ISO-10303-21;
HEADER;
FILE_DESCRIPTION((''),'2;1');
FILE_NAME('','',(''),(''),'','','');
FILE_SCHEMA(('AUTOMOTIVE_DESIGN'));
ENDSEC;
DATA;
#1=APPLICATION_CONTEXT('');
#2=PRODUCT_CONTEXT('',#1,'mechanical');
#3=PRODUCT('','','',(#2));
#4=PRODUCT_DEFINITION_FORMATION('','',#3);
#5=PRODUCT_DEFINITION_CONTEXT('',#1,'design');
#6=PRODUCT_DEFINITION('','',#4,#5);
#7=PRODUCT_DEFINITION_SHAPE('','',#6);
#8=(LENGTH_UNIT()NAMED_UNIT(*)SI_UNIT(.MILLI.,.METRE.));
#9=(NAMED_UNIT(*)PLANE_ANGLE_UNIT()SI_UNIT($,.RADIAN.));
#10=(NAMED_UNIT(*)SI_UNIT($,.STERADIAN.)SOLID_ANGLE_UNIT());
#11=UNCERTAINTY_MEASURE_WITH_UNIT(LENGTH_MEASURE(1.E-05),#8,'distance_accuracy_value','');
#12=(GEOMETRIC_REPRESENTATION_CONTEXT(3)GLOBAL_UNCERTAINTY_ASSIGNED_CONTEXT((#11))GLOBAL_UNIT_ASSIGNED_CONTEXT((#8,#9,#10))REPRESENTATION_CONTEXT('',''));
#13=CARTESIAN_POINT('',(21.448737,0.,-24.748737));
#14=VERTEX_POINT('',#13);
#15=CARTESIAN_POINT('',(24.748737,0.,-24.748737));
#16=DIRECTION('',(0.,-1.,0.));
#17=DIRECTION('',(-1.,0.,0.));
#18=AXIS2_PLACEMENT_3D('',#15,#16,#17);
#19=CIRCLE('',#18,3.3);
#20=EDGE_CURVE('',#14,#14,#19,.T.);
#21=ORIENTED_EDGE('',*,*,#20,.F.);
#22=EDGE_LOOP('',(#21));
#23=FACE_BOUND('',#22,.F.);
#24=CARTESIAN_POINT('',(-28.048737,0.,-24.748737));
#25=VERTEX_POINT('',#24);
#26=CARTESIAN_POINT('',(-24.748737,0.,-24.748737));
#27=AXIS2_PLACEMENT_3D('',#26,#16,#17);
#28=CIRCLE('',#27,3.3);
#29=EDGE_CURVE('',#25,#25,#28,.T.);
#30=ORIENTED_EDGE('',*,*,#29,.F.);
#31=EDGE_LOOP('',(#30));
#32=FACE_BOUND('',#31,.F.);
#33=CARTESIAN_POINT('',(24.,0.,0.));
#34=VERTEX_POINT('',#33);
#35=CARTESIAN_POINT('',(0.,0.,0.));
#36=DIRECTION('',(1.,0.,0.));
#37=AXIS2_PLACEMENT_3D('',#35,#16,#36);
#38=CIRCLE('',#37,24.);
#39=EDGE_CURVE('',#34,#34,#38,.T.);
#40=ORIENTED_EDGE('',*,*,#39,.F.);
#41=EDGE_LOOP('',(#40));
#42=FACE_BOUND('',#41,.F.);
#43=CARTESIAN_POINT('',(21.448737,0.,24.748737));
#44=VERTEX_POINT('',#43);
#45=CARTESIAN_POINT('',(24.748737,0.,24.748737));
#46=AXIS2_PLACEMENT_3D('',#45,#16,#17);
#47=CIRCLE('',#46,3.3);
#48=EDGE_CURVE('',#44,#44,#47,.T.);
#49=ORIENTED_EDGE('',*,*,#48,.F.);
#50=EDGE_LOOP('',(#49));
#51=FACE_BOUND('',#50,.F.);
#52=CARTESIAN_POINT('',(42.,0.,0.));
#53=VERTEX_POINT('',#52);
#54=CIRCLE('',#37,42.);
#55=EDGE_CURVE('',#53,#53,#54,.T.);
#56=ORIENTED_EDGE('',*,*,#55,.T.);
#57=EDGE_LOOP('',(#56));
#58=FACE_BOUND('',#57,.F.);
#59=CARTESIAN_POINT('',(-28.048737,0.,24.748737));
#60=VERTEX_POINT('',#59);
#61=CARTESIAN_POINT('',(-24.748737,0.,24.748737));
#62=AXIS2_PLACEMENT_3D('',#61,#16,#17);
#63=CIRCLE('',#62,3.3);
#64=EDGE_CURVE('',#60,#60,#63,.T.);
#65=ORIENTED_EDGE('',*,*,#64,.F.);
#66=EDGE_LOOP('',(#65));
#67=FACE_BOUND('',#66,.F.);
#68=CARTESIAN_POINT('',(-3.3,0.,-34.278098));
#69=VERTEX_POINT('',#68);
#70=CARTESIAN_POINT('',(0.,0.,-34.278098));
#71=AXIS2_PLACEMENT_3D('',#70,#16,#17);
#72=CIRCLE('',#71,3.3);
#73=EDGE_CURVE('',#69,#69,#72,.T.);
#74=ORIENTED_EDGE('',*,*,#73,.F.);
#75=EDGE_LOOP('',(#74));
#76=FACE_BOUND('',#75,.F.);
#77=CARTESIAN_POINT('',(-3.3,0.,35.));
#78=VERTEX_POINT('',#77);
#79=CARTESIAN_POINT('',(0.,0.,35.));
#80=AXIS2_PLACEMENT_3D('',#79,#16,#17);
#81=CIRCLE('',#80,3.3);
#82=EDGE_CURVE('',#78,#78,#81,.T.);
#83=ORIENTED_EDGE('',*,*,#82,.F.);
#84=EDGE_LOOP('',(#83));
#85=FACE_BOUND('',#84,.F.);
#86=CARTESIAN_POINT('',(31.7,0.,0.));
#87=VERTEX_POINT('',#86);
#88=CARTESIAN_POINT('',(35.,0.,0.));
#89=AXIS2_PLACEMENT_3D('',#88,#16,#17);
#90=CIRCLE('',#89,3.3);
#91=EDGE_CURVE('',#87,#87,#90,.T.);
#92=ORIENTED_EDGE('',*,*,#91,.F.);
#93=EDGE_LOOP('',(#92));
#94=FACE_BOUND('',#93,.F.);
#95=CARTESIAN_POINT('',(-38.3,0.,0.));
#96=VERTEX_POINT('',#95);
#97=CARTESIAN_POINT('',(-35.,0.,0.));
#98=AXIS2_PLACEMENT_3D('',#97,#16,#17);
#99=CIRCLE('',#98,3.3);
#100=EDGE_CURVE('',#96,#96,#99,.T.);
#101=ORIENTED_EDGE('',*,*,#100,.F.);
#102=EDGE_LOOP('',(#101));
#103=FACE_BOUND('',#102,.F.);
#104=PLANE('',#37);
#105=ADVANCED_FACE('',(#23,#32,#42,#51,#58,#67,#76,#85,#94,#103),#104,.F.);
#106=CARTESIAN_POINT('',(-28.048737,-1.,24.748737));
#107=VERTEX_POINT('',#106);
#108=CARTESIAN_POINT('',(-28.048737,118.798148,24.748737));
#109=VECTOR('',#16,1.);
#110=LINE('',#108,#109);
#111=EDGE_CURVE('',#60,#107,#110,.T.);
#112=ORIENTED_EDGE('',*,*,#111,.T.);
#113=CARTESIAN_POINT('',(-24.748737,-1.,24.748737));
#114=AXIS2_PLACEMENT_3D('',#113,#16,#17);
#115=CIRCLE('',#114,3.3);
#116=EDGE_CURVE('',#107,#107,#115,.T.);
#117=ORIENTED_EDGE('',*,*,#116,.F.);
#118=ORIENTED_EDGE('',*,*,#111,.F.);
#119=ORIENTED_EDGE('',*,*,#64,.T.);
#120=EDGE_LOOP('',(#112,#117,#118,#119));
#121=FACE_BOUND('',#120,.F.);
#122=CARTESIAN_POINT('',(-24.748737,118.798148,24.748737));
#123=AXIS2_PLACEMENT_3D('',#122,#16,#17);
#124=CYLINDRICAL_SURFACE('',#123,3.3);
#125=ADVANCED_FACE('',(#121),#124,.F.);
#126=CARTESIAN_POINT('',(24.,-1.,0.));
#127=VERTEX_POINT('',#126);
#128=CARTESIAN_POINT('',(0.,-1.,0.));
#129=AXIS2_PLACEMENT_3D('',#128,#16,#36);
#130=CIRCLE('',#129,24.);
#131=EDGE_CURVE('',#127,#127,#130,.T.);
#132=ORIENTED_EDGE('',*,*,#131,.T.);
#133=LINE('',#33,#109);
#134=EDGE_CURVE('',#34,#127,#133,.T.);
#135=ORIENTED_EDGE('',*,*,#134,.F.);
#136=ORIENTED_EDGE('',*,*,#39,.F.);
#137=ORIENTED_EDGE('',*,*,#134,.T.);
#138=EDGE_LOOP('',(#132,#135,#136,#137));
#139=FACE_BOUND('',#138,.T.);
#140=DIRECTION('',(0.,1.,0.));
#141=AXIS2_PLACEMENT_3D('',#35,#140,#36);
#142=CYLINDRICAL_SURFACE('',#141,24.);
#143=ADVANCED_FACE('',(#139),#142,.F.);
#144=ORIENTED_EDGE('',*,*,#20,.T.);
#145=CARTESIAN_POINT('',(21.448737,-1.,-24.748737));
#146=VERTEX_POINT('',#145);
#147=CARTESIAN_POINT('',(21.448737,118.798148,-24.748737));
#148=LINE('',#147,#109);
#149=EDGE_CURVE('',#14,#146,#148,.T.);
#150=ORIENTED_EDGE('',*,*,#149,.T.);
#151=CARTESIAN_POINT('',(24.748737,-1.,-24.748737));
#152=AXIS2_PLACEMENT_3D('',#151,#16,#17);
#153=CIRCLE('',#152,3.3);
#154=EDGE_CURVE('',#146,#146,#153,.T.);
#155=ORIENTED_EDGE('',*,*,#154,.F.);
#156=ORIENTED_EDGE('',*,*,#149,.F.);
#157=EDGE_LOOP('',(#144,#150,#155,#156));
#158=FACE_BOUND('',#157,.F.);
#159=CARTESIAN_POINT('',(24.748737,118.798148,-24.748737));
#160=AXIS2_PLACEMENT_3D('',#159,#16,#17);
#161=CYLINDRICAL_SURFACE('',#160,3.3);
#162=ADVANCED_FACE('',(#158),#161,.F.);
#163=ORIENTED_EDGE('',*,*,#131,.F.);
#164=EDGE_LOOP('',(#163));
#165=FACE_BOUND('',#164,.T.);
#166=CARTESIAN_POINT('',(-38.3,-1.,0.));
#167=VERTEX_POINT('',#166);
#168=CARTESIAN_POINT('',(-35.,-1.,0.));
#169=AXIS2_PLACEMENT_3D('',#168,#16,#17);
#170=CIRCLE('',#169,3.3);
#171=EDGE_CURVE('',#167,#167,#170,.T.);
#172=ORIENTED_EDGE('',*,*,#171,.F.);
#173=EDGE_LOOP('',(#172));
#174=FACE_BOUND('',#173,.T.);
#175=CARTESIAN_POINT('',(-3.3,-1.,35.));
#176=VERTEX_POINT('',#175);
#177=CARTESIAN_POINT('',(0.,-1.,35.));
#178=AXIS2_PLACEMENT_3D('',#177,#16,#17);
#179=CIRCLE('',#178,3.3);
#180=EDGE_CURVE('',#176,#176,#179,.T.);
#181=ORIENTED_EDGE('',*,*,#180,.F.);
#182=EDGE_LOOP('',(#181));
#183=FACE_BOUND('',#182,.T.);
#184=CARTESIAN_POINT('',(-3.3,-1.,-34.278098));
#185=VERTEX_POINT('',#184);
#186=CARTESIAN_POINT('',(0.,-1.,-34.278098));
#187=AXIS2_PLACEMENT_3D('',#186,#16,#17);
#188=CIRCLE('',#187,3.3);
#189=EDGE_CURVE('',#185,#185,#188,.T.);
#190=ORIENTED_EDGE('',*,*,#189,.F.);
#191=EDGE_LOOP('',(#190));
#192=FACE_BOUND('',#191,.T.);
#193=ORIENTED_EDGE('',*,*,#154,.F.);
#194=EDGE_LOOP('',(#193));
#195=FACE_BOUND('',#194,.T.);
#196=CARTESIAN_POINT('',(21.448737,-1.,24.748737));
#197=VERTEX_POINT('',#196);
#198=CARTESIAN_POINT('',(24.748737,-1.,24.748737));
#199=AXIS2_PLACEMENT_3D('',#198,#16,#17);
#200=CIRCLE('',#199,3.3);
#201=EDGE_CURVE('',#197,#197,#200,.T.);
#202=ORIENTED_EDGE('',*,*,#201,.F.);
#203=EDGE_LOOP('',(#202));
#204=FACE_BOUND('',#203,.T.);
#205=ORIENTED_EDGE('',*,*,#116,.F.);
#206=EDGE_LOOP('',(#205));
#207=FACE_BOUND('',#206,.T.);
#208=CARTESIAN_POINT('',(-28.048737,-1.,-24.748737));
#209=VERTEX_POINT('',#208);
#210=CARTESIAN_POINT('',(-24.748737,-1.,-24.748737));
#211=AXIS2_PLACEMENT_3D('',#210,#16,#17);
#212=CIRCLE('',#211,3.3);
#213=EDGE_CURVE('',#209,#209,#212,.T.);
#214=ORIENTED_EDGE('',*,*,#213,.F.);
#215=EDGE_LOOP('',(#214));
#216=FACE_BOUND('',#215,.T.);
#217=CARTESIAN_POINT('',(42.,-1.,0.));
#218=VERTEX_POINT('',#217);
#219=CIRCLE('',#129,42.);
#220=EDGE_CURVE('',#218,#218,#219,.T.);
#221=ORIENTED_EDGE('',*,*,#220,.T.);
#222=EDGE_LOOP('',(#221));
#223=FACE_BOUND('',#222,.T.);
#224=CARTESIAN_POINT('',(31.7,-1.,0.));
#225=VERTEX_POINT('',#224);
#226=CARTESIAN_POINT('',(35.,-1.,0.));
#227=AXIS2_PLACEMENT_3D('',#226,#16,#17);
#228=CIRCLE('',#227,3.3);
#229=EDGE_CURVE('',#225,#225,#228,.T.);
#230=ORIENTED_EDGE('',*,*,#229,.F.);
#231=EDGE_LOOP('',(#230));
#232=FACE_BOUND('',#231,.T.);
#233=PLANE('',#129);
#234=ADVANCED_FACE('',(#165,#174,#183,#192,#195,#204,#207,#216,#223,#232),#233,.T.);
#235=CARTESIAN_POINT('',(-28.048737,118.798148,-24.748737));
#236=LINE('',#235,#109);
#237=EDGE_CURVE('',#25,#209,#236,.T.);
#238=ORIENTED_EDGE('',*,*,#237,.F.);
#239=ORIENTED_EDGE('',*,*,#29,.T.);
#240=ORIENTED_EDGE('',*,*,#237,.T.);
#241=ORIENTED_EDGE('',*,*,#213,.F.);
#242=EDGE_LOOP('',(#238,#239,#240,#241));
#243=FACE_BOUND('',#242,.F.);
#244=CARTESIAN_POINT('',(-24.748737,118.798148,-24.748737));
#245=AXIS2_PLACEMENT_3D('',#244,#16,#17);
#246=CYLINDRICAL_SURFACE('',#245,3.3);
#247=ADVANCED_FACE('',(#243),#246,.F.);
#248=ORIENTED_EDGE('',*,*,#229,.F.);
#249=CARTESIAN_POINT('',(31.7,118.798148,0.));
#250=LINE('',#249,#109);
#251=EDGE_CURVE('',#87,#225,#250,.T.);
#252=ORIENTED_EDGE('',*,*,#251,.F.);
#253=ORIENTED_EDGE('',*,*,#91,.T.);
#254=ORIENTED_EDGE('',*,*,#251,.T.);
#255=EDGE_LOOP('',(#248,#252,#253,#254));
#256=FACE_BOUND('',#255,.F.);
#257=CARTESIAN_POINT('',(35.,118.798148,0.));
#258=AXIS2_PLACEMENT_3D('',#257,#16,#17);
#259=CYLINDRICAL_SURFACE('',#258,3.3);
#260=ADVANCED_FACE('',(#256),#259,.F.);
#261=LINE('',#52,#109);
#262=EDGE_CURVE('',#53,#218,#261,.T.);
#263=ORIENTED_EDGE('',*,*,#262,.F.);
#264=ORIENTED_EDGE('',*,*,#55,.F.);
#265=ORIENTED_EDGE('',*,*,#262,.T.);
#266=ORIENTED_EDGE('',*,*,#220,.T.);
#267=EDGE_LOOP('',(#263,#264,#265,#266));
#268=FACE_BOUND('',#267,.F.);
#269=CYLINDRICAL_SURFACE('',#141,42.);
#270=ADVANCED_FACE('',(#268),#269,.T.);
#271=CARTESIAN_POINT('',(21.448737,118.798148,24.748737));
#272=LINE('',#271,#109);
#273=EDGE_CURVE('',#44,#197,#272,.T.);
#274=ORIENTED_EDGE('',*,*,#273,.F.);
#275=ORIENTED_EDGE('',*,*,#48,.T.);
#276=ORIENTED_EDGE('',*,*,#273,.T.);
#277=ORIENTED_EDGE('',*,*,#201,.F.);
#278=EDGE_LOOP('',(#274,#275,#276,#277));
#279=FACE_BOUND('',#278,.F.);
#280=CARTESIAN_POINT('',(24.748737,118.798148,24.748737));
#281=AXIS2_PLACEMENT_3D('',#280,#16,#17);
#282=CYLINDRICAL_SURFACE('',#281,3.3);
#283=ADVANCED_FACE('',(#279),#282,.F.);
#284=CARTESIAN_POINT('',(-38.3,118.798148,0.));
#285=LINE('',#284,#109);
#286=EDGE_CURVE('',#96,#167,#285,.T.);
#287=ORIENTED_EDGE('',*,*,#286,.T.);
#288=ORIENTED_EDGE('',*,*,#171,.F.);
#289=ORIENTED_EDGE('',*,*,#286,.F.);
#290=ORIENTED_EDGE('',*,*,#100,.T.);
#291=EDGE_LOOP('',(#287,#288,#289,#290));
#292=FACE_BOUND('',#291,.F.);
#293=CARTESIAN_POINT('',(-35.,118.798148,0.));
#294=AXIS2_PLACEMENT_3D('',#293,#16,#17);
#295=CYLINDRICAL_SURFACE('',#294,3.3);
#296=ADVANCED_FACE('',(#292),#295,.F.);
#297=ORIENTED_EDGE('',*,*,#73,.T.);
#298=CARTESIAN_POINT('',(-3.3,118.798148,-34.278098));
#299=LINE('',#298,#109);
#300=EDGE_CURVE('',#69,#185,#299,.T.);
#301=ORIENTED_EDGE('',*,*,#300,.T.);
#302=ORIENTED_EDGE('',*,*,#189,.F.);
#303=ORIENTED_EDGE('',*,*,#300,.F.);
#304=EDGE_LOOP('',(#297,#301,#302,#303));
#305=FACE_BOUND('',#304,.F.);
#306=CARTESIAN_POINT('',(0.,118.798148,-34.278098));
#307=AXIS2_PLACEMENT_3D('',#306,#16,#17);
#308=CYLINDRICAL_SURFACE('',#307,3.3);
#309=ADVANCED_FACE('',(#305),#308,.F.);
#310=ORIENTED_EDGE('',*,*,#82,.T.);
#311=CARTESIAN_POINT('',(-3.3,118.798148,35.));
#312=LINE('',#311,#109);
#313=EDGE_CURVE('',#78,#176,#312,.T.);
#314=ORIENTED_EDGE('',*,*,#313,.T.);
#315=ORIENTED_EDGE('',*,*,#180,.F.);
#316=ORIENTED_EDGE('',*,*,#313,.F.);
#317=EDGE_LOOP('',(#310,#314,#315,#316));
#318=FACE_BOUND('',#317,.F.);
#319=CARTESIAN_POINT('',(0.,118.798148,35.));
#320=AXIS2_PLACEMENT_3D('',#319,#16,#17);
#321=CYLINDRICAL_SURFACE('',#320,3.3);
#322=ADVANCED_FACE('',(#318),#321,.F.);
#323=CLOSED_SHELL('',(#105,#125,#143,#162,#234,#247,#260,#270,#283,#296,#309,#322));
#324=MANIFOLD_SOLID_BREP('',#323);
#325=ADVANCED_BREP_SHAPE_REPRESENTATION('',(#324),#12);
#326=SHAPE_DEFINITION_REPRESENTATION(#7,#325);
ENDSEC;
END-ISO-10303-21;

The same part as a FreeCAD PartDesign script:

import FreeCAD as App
import Part
import Sketcher
Q = App.Units.Quantity

doc = App.newDocument("Part")
body = doc.addObject("PartDesign::Body", "Body")

# Sketch on XZ plane
sketch1 = body.newObject("Sketcher::SketchObject", "Sketch")
sketch1.AttachmentSupport = (doc.getObject("XZ_Plane"), [""])
sketch1.MapMode = "FlatFace"
sketch1.addGeometry(Part.Circle(App.Vector(0, 0, 0), App.Vector(0, 0, 1), 42), False)
sketch1.addGeometry(Part.Circle(App.Vector(0, 0, 0), App.Vector(0, 0, 1), 24), False)
sketch1.addConstraint(Sketcher.Constraint("Coincident", 0, 3, -1, 1))
sketch1.addConstraint(Sketcher.Constraint("Coincident", 1, 3, -1, 1))
sketch1.addConstraint(Sketcher.Constraint("Diameter", 0, Q("84 mm")))
sketch1.addConstraint(Sketcher.Constraint("Diameter", 1, Q("48 mm")))
pad1 = body.newObject("PartDesign::Pad", "Pad")
pad1.Profile = sketch1
pad1.Length = 1

# Sketch on XZ plane
sketch2 = body.newObject("Sketcher::SketchObject", "Sketch001")
sketch2.AttachmentSupport = (doc.getObject("XZ_Plane"), [""])
sketch2.MapMode = "FlatFace"
sketch2.addGeometry(Part.Circle(App.Vector(24.7, 24.7, 0), App.Vector(0, 0, 1), 3.3), False)
sketch2.addGeometry(Part.Circle(App.Vector(35, 0, 0), App.Vector(0, 0, 1), 3.3), False)
sketch2.addGeometry(Part.Circle(App.Vector(24.7, -24.7, 0), App.Vector(0, 0, 1), 3.3), False)
sketch2.addGeometry(Part.Circle(App.Vector(0, -34.3, 0), App.Vector(0, 0, 1), 3.3), False)
sketch2.addGeometry(Part.Circle(App.Vector(-24.7, -24.7, 0), App.Vector(0, 0, 1), 3.3), False)
sketch2.addGeometry(Part.Circle(App.Vector(-35, 0, 0), App.Vector(0, 0, 1), 3.3), False)
sketch2.addGeometry(Part.Circle(App.Vector(-24.7, 24.7, 0), App.Vector(0, 0, 1), 3.3), False)
sketch2.addGeometry(Part.Circle(App.Vector(0, 35, 0), App.Vector(0, 0, 1), 3.3), False)
sketch2.addConstraint(Sketcher.Constraint("Equal", 0, 1))
sketch2.addConstraint(Sketcher.Constraint("Equal", 1, 2))
sketch2.addConstraint(Sketcher.Constraint("Equal", 2, 3))
sketch2.addConstraint(Sketcher.Constraint("Equal", 3, 4))
sketch2.addConstraint(Sketcher.Constraint("Equal", 4, 5))
sketch2.addConstraint(Sketcher.Constraint("Equal", 5, 6))
sketch2.addConstraint(Sketcher.Constraint("Equal", 6, 7))
sketch2.addConstraint(Sketcher.Constraint("Symmetric", 0, 3, 4, 3, -1, 1))
sketch2.addConstraint(Sketcher.Constraint("Symmetric", 1, 3, 5, 3, -1, 1))
sketch2.addConstraint(Sketcher.Constraint("Symmetric", 2, 3, 6, 3, -1, 1))
sketch2.addConstraint(Sketcher.Constraint("Symmetric", 2, 3, 4, 3, -2))
sketch2.addConstraint(Sketcher.Constraint("PointOnObject", 1, 3, -1))
sketch2.addConstraint(Sketcher.Constraint("PointOnObject", 3, 3, -2))
sketch2.addConstraint(Sketcher.Constraint("PointOnObject", 7, 3, -2))
sketch2.addConstraint(Sketcher.Constraint("Diameter", 0, Q("6.6 mm")))
sketch2.addConstraint(Sketcher.Constraint("DistanceX", -1, 1, 1, 3, Q("35 mm")))
sketch2.addConstraint(Sketcher.Constraint("DistanceY", -1, 1, 7, 3, Q("35 mm")))
sketch2.addConstraint(Sketcher.Constraint("DistanceY", 3, 3, -1, 1, Q("34.278098 mm")))
sketch2.addConstraint(Sketcher.Constraint("DistanceY", 3, 3, 2, 3, Q("9.529361 mm")))
sketch2.addConstraint(Sketcher.Constraint("DistanceX", -1, 1, 0, 3, Q("24.748737 mm")))
doc.recompute()
hole = body.newObject("PartDesign::Hole", "Hole")
hole.Profile = sketch2
hole.ThreadType = "None"
hole.Diameter = 6.6
hole.DepthType = "ThroughAll"
hole.Reversed = True

doc.recompute()
